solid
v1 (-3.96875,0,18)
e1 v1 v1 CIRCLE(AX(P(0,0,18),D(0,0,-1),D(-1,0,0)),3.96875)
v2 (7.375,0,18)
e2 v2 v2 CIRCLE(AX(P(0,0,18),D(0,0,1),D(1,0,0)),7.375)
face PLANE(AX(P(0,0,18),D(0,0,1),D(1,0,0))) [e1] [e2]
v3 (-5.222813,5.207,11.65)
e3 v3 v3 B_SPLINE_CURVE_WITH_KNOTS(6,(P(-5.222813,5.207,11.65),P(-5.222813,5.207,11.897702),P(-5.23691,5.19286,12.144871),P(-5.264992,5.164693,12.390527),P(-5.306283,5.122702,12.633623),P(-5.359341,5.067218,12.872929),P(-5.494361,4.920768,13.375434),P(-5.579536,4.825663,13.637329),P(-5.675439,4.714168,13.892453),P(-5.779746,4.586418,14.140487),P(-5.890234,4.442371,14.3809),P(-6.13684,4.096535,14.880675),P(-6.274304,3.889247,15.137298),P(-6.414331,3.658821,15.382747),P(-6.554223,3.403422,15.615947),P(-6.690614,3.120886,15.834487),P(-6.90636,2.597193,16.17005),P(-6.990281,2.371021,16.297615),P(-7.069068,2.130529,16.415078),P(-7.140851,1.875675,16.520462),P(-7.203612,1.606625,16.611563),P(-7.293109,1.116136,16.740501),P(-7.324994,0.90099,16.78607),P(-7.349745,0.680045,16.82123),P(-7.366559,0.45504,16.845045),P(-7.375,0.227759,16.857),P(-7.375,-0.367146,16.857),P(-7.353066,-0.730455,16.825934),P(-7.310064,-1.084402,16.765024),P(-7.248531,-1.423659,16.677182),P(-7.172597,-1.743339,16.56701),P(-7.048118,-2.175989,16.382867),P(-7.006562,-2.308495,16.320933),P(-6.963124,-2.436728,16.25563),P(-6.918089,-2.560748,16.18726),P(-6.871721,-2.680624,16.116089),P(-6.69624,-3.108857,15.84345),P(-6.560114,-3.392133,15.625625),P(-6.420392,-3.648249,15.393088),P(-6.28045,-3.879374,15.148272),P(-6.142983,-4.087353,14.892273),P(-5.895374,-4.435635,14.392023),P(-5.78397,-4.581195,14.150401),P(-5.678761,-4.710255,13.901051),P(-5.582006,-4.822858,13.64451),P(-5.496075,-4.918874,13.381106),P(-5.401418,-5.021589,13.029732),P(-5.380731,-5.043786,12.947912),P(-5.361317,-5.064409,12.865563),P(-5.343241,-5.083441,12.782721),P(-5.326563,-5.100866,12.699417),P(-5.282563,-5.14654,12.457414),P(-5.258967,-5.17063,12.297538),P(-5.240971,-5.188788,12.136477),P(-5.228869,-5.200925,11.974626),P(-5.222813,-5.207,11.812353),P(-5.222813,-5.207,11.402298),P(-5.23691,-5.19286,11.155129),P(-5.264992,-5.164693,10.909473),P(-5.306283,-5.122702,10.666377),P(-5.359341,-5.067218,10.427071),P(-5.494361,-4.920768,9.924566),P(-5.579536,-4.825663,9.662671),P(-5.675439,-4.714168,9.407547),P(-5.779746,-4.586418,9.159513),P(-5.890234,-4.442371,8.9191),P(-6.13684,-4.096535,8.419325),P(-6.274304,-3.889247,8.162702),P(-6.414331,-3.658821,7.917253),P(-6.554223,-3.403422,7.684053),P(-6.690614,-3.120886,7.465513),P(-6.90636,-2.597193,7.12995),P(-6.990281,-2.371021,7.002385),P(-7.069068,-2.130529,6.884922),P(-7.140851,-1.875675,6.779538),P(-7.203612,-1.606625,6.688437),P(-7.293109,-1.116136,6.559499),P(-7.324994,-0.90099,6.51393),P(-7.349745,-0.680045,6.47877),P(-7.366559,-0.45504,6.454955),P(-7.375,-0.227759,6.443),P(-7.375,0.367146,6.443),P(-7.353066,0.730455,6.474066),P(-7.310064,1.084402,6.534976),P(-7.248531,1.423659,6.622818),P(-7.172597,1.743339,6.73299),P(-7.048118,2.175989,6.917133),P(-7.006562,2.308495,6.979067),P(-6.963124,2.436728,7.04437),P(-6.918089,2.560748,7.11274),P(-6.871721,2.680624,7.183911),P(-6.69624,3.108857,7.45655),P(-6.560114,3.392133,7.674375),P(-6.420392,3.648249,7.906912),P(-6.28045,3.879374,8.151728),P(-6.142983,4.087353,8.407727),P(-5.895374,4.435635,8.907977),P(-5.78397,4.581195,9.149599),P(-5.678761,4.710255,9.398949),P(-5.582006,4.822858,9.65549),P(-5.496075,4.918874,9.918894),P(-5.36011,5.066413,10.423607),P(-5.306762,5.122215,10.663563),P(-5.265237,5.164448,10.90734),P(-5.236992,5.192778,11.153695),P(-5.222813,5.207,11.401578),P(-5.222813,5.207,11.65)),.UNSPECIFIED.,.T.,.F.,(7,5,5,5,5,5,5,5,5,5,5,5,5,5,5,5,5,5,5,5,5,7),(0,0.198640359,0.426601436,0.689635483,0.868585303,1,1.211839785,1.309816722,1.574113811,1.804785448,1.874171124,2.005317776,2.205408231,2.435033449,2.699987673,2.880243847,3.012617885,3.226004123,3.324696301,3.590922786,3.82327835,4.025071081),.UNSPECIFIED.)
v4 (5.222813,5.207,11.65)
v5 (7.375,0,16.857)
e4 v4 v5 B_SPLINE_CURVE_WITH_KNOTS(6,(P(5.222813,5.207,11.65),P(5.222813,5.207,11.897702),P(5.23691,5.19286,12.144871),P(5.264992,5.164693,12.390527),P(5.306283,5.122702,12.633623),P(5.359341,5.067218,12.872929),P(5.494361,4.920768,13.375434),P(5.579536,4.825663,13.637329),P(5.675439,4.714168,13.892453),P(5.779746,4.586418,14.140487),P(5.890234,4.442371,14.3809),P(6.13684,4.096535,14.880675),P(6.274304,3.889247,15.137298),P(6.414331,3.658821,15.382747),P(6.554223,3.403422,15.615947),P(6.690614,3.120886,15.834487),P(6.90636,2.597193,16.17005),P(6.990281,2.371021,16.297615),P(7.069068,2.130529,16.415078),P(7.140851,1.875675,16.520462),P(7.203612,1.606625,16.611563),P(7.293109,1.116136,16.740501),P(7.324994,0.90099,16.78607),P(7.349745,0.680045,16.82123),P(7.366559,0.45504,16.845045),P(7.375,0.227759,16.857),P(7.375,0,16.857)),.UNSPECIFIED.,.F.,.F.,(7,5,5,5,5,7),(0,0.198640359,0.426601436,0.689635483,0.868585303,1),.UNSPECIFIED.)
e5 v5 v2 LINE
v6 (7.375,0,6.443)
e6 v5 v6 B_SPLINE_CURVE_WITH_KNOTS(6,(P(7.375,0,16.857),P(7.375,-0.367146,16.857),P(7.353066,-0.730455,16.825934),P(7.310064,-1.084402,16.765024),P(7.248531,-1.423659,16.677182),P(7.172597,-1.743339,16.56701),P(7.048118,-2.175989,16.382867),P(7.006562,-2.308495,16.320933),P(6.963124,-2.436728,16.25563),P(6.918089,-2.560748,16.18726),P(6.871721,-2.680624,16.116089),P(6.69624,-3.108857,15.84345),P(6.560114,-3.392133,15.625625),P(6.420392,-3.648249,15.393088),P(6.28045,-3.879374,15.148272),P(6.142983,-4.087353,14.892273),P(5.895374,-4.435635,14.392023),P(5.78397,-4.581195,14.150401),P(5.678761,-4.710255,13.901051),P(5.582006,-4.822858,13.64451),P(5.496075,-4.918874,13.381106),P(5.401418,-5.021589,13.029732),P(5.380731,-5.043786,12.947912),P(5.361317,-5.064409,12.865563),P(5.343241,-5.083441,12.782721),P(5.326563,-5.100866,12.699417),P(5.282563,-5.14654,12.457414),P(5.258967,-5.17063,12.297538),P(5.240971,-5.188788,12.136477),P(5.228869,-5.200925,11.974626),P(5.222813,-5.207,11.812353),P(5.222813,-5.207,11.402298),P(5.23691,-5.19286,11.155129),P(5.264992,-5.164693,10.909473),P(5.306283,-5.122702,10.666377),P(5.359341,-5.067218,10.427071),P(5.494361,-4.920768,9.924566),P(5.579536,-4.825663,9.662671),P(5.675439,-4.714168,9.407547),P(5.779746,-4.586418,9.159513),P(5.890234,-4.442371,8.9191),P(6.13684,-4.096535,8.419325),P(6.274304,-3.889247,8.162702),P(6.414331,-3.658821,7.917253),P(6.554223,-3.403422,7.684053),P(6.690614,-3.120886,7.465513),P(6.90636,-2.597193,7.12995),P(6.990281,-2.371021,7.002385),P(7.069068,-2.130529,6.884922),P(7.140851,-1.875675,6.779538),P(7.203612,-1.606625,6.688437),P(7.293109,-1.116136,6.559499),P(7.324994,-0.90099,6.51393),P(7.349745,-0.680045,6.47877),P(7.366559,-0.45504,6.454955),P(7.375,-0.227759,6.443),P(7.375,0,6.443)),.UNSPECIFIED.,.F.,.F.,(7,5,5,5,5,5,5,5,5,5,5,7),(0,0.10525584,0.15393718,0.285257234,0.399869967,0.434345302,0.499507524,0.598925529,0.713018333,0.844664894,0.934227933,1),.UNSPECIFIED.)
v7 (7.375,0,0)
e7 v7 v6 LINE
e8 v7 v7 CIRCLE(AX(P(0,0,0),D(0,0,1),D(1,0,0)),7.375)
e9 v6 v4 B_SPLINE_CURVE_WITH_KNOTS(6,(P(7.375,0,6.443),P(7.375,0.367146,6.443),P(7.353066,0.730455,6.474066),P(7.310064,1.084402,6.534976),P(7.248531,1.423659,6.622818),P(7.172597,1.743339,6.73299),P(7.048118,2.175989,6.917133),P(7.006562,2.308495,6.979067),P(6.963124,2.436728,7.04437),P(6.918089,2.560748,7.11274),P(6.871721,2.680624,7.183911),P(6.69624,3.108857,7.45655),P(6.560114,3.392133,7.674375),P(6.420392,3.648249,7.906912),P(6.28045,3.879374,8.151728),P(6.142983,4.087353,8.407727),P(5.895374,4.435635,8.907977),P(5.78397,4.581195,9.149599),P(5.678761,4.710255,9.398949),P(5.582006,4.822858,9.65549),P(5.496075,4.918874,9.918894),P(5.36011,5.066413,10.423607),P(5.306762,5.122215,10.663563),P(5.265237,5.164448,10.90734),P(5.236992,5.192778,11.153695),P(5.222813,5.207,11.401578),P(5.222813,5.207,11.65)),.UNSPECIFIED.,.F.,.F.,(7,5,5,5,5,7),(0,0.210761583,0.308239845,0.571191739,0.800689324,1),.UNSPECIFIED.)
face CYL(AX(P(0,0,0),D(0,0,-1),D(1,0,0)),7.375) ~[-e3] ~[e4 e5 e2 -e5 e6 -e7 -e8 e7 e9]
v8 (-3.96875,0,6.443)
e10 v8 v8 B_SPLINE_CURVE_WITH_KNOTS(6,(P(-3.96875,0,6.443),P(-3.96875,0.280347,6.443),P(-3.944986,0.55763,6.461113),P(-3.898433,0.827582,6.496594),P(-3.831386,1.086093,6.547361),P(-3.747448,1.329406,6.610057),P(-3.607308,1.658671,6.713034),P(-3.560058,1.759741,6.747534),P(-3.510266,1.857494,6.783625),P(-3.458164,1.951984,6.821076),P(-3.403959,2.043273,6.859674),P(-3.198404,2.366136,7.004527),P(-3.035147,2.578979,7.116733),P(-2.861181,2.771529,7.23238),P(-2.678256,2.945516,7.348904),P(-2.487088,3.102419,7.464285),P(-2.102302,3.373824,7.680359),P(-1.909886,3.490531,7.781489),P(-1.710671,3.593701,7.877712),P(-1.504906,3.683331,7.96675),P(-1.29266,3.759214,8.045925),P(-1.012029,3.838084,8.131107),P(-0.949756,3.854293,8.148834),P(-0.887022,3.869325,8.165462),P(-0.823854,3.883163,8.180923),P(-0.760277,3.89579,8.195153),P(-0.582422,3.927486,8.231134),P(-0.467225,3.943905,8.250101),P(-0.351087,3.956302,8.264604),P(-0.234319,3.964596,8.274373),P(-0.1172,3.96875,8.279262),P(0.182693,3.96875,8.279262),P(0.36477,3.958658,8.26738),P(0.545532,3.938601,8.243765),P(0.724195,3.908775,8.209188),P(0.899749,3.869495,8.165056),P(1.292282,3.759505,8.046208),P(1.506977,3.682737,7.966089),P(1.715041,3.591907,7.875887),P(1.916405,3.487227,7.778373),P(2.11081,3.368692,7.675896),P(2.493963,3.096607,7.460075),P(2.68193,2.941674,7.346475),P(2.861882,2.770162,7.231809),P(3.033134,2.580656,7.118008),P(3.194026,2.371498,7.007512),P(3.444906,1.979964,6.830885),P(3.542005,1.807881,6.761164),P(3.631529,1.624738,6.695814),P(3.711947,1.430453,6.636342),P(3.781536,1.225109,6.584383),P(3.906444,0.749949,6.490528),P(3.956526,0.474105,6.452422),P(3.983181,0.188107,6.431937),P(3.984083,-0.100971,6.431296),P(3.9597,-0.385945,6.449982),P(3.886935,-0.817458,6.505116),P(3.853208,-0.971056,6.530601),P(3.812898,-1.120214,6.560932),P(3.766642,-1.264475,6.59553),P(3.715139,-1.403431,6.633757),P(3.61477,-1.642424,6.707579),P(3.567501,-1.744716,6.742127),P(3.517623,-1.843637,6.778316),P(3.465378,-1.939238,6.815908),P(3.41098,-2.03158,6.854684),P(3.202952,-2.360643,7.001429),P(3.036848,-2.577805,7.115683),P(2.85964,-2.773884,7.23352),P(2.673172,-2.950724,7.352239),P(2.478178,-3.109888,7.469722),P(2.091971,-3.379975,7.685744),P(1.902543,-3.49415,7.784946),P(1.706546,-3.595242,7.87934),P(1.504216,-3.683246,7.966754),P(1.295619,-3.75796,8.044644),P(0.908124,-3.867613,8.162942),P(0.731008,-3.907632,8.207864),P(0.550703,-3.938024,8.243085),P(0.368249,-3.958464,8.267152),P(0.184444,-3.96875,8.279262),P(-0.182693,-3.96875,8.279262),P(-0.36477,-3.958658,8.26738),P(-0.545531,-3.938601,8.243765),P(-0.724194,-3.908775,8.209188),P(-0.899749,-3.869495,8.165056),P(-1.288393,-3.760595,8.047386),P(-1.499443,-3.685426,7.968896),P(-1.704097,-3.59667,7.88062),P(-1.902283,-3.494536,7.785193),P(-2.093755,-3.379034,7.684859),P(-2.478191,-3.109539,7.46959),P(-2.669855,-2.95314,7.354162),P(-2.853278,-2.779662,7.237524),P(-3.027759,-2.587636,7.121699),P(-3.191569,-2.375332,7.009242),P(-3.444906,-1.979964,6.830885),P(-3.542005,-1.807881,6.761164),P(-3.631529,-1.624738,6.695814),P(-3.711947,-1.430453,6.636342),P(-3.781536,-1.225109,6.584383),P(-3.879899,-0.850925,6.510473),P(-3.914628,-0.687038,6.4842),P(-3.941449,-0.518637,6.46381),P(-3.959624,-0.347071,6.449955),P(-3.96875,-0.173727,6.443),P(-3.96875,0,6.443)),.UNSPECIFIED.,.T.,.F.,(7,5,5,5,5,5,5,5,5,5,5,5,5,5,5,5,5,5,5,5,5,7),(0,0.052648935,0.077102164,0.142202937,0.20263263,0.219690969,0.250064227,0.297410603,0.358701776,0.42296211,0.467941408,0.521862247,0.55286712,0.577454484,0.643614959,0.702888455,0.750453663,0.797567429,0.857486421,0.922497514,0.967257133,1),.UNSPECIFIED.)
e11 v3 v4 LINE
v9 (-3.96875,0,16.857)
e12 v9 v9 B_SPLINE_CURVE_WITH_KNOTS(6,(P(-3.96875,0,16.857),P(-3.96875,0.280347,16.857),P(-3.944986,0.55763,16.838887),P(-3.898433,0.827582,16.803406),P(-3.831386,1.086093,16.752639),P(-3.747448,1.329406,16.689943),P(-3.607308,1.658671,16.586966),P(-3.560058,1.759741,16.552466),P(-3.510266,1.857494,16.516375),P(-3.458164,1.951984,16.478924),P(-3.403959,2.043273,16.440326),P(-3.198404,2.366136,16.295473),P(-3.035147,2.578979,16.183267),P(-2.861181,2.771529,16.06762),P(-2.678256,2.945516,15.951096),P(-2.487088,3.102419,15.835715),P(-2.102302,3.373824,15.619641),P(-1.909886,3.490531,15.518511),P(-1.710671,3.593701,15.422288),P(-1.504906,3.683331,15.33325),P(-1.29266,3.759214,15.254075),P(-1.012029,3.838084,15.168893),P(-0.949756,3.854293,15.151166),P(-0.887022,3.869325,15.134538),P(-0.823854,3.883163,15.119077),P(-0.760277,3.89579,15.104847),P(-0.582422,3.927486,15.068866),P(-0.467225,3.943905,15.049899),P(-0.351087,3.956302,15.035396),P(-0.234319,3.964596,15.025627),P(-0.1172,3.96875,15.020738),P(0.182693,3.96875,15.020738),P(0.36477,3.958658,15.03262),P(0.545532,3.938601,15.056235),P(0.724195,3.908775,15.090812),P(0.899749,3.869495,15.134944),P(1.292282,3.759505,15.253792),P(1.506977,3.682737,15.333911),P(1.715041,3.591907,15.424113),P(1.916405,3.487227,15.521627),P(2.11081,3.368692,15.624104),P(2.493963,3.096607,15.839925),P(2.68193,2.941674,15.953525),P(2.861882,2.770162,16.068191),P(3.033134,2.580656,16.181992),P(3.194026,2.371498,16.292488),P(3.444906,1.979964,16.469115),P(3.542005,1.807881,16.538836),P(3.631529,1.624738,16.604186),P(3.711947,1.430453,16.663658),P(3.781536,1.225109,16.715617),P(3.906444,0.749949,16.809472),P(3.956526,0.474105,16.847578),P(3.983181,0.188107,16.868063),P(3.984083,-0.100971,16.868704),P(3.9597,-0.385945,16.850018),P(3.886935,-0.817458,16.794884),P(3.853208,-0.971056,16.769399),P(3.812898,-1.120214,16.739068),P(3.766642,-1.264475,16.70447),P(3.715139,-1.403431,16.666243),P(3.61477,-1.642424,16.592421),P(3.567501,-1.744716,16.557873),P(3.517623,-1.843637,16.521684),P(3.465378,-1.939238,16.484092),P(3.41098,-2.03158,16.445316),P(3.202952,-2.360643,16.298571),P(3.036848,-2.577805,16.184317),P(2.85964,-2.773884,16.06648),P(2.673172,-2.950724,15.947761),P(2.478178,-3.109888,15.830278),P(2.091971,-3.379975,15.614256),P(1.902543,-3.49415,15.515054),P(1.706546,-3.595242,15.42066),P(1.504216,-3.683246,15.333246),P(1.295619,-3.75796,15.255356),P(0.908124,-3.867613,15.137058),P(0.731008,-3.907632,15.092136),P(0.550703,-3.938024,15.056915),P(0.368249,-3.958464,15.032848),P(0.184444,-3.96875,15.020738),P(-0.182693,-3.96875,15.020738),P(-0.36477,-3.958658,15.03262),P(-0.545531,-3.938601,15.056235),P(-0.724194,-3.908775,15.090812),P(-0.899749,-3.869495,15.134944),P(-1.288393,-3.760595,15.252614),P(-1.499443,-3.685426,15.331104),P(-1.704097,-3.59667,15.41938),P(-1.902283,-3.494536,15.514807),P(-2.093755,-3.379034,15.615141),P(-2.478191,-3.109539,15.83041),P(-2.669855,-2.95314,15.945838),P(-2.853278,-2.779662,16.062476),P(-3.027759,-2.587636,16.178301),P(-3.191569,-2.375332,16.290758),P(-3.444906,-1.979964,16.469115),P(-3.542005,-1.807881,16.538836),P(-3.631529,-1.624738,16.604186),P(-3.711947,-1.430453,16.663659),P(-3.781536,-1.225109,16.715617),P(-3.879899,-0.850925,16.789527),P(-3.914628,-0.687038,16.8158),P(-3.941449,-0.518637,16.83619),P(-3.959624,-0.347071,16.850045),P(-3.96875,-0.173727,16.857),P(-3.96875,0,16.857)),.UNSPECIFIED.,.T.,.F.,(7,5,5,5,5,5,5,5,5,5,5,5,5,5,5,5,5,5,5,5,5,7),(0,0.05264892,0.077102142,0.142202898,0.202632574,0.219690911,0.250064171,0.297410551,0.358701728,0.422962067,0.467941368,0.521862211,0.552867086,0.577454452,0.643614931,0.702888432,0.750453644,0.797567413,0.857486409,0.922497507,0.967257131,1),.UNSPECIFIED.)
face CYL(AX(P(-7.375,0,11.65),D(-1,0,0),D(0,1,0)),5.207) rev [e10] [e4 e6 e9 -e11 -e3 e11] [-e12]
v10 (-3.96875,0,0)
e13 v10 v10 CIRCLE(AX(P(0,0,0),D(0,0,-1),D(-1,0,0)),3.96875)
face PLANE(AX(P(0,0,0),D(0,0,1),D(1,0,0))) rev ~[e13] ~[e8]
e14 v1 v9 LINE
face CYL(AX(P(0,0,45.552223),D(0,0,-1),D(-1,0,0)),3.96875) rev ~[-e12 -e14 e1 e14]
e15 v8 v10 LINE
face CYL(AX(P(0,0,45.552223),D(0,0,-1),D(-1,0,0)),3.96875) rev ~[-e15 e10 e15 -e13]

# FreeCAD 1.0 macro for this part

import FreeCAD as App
import Part
import Sketcher
Q = App.Units.Quantity

doc = App.newDocument("Part")
params = doc.addObject("Spreadsheet::Sheet", "Params")
for row, (alias, value) in enumerate([
    ("pad1_length", "18 mm"),
    ("sketch2_diameter", "0.41 in"),
    ("sketch3_diameter", "0.3125 in"),
    ("hole_diameter", "0.3125 in"),
], start=1):
    params.set(f"A{row}", alias)
    params.set(f"B{row}", "=" + value)
    params.setAlias(f"B{row}", alias)

body = doc.addObject("PartDesign::Body", "Body")

# Sketch on XY plane
sketch1 = body.newObject("Sketcher::SketchObject", "Sketch")
sketch1.AttachmentSupport = (doc.getObject("XY_Plane"), [""])
sketch1.MapMode = "FlatFace"
sketch1.addGeometry(Part.Circle(App.Vector(0, 0, 0), App.Vector(0, 0, 1), 7), False)
sketch1.addConstraint(Sketcher.Constraint("Coincident", 0, 3, -1, 1))
sketch1.addConstraint(Sketcher.Constraint("Diameter", 0, Q("14.75 mm")))
pad1 = body.newObject("PartDesign::Pad", "Pad")
pad1.Profile = sketch1
pad1.setExpression("Length", "Params.pad1_length")

# Sketch on YZ plane
sketch2 = body.newObject("Sketcher::SketchObject", "Sketch001")
sketch2.AttachmentSupport = (doc.getObject("YZ_Plane"), [""])
sketch2.MapMode = "FlatFace"
sketch2.AttachmentOffset = App.Placement(App.Vector(0, 0, -7.375), App.Rotation())
sketch2.addGeometry(Part.Circle(App.Vector(0, 12, 0), App.Vector(0, 0, 1), 5), False)
sketch2.addConstraint(Sketcher.Constraint("PointOnObject", 0, 3, -2))
sketch2.addConstraint(Sketcher.Constraint("Diameter", 0, Q("0.41 in")))
sketch2.addConstraint(Sketcher.Constraint("DistanceY", -1, 1, 0, 3, Q("11.65 mm")))
sketch2.setExpression("Constraints[1]", "Params.sketch2_diameter")
pocket1 = body.newObject("PartDesign::Pocket", "Pocket")
pocket1.Profile = sketch2
pocket1.Type = "ThroughAll"
pocket1.Reversed = True

# Sketch on XY plane
sketch3 = body.newObject("Sketcher::SketchObject", "Sketch002")
sketch3.AttachmentSupport = (doc.getObject("XY_Plane"), [""])
sketch3.MapMode = "FlatFace"
sketch3.AttachmentOffset = App.Placement(App.Vector(0, 0, 18), App.Rotation())
sketch3.addGeometry(Part.Circle(App.Vector(0, 0, 0), App.Vector(0, 0, 1), 4), False)
sketch3.addConstraint(Sketcher.Constraint("Coincident", 0, 3, -1, 1))
sketch3.addConstraint(Sketcher.Constraint("Diameter", 0, Q("0.3125 in")))
sketch3.setExpression("Constraints[1]", "Params.sketch3_diameter")
doc.recompute()
hole = body.newObject("PartDesign::Hole", "Hole")
hole.Profile = sketch3
hole.ThreadType = "None"
hole.setExpression("Diameter", "Params.hole_diameter")
hole.DepthType = "ThroughAll"

doc.recompute()
